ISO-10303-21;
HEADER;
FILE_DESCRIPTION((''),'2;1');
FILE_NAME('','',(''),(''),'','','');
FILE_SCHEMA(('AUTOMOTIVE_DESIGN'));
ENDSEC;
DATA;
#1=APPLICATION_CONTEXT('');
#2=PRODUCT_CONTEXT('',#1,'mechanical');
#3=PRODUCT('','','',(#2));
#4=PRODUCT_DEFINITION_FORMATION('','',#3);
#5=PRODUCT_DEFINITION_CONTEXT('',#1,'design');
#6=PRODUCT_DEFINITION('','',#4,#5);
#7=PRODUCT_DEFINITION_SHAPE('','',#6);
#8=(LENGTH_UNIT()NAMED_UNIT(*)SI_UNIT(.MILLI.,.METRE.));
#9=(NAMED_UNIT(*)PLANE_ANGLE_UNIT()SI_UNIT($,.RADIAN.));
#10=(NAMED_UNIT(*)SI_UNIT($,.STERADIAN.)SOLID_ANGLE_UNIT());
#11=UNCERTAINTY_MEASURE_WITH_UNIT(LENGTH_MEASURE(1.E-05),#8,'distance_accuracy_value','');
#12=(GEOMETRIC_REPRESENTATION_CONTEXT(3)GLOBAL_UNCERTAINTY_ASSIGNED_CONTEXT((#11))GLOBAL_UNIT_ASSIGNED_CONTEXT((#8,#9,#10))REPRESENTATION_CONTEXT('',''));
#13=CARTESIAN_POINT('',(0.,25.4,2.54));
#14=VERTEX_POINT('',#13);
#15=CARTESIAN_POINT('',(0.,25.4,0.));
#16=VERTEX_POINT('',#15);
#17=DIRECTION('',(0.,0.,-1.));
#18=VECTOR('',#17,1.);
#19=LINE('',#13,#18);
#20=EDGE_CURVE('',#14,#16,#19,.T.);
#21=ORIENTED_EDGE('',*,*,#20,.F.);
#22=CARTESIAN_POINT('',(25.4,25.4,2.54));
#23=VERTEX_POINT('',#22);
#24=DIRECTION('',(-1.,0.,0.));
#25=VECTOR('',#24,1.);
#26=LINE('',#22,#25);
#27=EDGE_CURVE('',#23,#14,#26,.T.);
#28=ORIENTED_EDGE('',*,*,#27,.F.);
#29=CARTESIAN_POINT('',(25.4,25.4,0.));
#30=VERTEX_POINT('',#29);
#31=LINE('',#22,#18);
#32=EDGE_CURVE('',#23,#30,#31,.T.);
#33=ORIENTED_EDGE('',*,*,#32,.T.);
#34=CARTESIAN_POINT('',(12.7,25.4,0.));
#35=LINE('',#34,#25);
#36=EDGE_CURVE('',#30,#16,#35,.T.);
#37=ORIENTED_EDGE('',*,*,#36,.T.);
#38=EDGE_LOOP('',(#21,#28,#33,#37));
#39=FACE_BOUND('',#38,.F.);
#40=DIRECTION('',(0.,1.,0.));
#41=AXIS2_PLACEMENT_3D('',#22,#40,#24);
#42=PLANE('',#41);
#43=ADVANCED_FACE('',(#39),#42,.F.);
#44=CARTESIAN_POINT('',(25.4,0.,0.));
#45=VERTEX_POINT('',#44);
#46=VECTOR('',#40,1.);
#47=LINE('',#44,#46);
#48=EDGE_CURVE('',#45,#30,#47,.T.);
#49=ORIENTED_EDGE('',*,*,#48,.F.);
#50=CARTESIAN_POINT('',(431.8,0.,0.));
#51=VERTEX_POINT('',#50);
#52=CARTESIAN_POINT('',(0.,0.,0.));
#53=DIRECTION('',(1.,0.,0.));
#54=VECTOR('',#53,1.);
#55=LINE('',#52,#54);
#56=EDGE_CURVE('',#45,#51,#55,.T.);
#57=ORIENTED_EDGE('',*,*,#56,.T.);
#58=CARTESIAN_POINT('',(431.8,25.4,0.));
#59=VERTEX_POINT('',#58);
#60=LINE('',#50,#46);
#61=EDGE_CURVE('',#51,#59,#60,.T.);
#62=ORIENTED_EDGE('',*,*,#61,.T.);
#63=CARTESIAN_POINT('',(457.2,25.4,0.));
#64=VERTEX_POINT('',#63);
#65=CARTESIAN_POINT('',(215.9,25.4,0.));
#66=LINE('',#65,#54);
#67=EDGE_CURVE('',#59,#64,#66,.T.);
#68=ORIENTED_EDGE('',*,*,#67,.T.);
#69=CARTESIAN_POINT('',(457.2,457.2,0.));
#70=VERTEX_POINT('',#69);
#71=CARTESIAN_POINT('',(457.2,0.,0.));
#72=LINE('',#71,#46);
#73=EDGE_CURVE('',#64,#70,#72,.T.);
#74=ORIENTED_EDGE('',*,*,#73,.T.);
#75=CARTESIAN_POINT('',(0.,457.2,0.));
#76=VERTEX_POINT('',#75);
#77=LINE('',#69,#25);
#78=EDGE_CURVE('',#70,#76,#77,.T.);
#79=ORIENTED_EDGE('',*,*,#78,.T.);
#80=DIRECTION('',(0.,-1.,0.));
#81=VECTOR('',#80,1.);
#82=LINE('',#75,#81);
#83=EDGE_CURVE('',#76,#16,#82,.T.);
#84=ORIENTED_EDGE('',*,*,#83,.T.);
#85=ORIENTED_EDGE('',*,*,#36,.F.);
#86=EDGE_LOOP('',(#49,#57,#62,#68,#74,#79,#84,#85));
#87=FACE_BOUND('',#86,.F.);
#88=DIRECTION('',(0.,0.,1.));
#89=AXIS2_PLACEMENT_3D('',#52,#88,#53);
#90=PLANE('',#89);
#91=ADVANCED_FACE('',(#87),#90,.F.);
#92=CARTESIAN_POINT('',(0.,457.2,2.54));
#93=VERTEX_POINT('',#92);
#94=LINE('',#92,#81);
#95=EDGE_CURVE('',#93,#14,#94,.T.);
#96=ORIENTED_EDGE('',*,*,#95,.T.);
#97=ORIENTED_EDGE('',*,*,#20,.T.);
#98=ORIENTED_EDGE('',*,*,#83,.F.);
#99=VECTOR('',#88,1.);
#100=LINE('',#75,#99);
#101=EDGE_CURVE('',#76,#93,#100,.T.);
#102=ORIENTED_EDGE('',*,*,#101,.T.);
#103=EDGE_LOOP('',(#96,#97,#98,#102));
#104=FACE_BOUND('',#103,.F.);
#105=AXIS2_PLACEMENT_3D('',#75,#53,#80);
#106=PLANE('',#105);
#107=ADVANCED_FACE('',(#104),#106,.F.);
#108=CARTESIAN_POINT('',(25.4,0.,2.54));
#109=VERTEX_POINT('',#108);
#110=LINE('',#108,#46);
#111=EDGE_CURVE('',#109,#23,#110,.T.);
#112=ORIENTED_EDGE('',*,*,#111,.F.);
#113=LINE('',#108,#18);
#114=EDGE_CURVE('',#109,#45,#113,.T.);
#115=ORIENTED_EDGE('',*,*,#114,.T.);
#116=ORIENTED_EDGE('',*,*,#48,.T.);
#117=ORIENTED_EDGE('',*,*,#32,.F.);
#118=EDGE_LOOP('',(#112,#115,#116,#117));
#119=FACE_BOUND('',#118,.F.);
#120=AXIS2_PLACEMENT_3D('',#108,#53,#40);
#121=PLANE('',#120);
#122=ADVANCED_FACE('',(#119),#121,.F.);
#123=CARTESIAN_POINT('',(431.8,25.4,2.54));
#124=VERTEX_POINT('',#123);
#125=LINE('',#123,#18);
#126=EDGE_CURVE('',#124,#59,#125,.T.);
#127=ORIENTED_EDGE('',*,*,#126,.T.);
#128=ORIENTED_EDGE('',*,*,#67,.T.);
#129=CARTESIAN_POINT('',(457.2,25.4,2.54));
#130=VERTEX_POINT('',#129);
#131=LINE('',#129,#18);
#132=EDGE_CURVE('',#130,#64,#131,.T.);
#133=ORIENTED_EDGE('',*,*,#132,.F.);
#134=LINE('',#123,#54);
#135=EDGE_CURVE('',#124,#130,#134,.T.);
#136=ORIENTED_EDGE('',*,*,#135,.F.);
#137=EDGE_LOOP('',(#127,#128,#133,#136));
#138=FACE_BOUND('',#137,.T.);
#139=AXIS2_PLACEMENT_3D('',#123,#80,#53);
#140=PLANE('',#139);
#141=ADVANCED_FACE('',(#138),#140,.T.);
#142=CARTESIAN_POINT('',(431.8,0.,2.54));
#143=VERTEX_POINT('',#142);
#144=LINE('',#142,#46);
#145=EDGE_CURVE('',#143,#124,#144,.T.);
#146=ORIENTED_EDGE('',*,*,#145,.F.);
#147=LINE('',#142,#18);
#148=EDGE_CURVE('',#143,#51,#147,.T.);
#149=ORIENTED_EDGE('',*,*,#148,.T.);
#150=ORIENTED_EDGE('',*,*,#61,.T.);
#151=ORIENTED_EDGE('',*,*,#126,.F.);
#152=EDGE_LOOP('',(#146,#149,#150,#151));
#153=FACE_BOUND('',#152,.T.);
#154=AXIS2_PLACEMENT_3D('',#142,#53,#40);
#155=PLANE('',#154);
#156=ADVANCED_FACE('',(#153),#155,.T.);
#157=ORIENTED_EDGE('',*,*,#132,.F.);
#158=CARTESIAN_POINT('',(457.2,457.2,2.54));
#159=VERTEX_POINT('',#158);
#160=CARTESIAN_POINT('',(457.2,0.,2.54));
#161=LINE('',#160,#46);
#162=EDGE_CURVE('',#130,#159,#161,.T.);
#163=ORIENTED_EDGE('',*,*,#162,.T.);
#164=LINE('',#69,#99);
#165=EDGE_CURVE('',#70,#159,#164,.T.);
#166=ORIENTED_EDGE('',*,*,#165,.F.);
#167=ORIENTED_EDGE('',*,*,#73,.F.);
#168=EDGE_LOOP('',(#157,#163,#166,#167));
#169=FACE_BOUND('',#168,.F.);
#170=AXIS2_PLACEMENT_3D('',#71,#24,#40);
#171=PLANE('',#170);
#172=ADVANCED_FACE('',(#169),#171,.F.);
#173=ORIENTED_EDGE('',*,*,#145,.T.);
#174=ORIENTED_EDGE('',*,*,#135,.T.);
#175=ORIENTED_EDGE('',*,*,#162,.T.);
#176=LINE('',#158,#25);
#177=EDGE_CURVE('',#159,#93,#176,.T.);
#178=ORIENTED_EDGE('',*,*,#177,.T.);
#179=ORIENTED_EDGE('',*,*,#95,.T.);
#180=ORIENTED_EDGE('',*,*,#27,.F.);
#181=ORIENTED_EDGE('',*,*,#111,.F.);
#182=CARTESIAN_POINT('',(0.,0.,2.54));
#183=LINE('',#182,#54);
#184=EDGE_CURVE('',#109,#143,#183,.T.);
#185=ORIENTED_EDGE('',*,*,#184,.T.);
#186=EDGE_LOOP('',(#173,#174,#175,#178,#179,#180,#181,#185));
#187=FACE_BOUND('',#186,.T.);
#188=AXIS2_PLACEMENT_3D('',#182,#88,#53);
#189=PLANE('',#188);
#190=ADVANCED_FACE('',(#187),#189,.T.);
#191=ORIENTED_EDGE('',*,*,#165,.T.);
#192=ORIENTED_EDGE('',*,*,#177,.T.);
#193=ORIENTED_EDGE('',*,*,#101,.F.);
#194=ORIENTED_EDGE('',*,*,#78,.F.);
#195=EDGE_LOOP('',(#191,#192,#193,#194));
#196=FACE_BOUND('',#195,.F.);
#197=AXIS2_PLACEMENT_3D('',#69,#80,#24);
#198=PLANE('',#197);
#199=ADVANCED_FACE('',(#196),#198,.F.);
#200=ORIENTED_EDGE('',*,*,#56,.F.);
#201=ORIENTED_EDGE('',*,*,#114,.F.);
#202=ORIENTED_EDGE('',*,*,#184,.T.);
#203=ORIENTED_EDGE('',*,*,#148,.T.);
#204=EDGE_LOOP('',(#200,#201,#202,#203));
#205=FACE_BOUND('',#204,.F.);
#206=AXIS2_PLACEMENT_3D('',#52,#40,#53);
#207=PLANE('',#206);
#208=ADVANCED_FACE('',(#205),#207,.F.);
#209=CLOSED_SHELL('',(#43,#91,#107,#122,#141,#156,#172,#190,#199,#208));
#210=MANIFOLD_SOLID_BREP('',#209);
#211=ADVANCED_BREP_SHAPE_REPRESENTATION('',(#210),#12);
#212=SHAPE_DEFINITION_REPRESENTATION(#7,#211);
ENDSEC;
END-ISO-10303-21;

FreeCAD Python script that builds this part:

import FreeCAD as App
import Part
import Sketcher
Q = App.Units.Quantity

doc = App.newDocument("Part")
params = doc.addObject("Spreadsheet::Sheet", "Params")
for row, (alias, value) in enumerate([
    ("sketch1_width", "18 in"),
    ("pad1_length", "0.1 in"),
    ("sketch2_width", "1 in"),
    ("pocket1_length", "1 in"),
], start=1):
    params.set(f"A{row}", alias)
    params.set(f"B{row}", "=" + value)
    params.setAlias(f"B{row}", alias)

body = doc.addObject("PartDesign::Body", "Body")

# Sketch on XY plane
sketch1 = doc.addObject("Sketcher::SketchObject", "Sketch")
body.addObject(sketch1)
sketch1.AttachmentSupport = (doc.XY_Plane, [""])
sketch1.MapMode = "FlatFace"
sketch1.addGeometry([
    Part.LineSegment(App.Vector(0, 457, 0), App.Vector(0, 0, 0)),
    Part.LineSegment(App.Vector(0, 0, 0), App.Vector(457, 0, 0)),
    Part.LineSegment(App.Vector(457, 0, 0), App.Vector(457, 457, 0)),
    Part.LineSegment(App.Vector(457, 457, 0), App.Vector(0, 457, 0)),
], False)
sketch1.addConstraint([
    Sketcher.Constraint("Coincident", 0, 2, 1, 1),
    Sketcher.Constraint("Coincident", 1, 2, 2, 1),
    Sketcher.Constraint("Coincident", 2, 2, 3, 1),
    Sketcher.Constraint("Coincident", 3, 2, 0, 1),
    Sketcher.Constraint("Vertical", 0),
    Sketcher.Constraint("Horizontal", 1),
    Sketcher.Constraint("Vertical", 2),
    Sketcher.Constraint("Horizontal", 3),
    Sketcher.Constraint("Coincident", 0, 2, -1, 1),
    Sketcher.Constraint("Equal", 3, 0),
    Sketcher.Constraint("DistanceX", 1, 1, 1, 2, Q("18 in")),
])
sketch1.setExpression("Constraints[10]", "Params.sketch1_width")
pad1 = doc.addObject("PartDesign::Pad", "Pad")
body.addObject(pad1)
pad1.Profile = sketch1
pad1.setExpression("Length", "Params.pad1_length")

# Sketch on XY plane
sketch2 = doc.addObject("Sketcher::SketchObject", "Sketch001")
body.addObject(sketch2)
sketch2.AttachmentSupport = (doc.XY_Plane, [""])
sketch2.MapMode = "FlatFace"
sketch2.AttachmentOffset = App.Placement(App.Vector(0, 0, 0.1 * 25.4), App.Rotation())
sketch2.addGeometry([
    Part.LineSegment(App.Vector(0, 25, 0), App.Vector(0, 0, 0)),  # 0
    Part.LineSegment(App.Vector(0, 0, 0), App.Vector(25, 0, 0)),  # 1
    Part.LineSegment(App.Vector(25, 0, 0), App.Vector(25, 25, 0)),  # 2
    Part.LineSegment(App.Vector(25, 25, 0), App.Vector(0, 25, 0)),  # 3
    Part.LineSegment(App.Vector(432, 25, 0), App.Vector(432, 0, 0)),  # 4
    Part.LineSegment(App.Vector(432, 0, 0), App.Vector(457, 0, 0)),  # 5
    Part.LineSegment(App.Vector(457, 0, 0), App.Vector(457, 25, 0)),  # 6
    Part.LineSegment(App.Vector(457, 25, 0), App.Vector(432, 25, 0)),  # 7
], False)
sketch2.addConstraint([
    Sketcher.Constraint("Coincident", 0, 2, 1, 1),
    Sketcher.Constraint("Coincident", 1, 2, 2, 1),
    Sketcher.Constraint("Coincident", 2, 2, 3, 1),
    Sketcher.Constraint("Coincident", 3, 2, 0, 1),
    Sketcher.Constraint("Coincident", 4, 2, 5, 1),
    Sketcher.Constraint("Coincident", 5, 2, 6, 1),
    Sketcher.Constraint("Coincident", 6, 2, 7, 1),
    Sketcher.Constraint("Coincident", 7, 2, 4, 1),
    Sketcher.Constraint("Vertical", 0),
    Sketcher.Constraint("Horizontal", 1),
    Sketcher.Constraint("Vertical", 2),
    Sketcher.Constraint("Horizontal", 3),
    Sketcher.Constraint("Vertical", 4),
    Sketcher.Constraint("Horizontal", 5),
    Sketcher.Constraint("Vertical", 6),
    Sketcher.Constraint("Horizontal", 7),
    Sketcher.Constraint("Coincident", 0, 2, -1, 1),
    Sketcher.Constraint("PointOnObject", 4, 2, -1),
    Sketcher.Constraint("Horizontal", 3, 2, 6, 2),
    Sketcher.Constraint("Equal", 3, 5),
    Sketcher.Constraint("Equal", 7, 0),
    Sketcher.Constraint("DistanceX", 1, 1, 1, 2, Q("1 in")),
    Sketcher.Constraint("DistanceX", -1, 1, 4, 2, Q("17 in")),
])
sketch2.setExpression("Constraints[21]", "Params.sketch2_width")
pocket1 = doc.addObject("PartDesign::Pocket", "Pocket")
body.addObject(pocket1)
pocket1.Profile = sketch2
pocket1.setExpression("Length", "Params.pocket1_length")

doc.recompute()
